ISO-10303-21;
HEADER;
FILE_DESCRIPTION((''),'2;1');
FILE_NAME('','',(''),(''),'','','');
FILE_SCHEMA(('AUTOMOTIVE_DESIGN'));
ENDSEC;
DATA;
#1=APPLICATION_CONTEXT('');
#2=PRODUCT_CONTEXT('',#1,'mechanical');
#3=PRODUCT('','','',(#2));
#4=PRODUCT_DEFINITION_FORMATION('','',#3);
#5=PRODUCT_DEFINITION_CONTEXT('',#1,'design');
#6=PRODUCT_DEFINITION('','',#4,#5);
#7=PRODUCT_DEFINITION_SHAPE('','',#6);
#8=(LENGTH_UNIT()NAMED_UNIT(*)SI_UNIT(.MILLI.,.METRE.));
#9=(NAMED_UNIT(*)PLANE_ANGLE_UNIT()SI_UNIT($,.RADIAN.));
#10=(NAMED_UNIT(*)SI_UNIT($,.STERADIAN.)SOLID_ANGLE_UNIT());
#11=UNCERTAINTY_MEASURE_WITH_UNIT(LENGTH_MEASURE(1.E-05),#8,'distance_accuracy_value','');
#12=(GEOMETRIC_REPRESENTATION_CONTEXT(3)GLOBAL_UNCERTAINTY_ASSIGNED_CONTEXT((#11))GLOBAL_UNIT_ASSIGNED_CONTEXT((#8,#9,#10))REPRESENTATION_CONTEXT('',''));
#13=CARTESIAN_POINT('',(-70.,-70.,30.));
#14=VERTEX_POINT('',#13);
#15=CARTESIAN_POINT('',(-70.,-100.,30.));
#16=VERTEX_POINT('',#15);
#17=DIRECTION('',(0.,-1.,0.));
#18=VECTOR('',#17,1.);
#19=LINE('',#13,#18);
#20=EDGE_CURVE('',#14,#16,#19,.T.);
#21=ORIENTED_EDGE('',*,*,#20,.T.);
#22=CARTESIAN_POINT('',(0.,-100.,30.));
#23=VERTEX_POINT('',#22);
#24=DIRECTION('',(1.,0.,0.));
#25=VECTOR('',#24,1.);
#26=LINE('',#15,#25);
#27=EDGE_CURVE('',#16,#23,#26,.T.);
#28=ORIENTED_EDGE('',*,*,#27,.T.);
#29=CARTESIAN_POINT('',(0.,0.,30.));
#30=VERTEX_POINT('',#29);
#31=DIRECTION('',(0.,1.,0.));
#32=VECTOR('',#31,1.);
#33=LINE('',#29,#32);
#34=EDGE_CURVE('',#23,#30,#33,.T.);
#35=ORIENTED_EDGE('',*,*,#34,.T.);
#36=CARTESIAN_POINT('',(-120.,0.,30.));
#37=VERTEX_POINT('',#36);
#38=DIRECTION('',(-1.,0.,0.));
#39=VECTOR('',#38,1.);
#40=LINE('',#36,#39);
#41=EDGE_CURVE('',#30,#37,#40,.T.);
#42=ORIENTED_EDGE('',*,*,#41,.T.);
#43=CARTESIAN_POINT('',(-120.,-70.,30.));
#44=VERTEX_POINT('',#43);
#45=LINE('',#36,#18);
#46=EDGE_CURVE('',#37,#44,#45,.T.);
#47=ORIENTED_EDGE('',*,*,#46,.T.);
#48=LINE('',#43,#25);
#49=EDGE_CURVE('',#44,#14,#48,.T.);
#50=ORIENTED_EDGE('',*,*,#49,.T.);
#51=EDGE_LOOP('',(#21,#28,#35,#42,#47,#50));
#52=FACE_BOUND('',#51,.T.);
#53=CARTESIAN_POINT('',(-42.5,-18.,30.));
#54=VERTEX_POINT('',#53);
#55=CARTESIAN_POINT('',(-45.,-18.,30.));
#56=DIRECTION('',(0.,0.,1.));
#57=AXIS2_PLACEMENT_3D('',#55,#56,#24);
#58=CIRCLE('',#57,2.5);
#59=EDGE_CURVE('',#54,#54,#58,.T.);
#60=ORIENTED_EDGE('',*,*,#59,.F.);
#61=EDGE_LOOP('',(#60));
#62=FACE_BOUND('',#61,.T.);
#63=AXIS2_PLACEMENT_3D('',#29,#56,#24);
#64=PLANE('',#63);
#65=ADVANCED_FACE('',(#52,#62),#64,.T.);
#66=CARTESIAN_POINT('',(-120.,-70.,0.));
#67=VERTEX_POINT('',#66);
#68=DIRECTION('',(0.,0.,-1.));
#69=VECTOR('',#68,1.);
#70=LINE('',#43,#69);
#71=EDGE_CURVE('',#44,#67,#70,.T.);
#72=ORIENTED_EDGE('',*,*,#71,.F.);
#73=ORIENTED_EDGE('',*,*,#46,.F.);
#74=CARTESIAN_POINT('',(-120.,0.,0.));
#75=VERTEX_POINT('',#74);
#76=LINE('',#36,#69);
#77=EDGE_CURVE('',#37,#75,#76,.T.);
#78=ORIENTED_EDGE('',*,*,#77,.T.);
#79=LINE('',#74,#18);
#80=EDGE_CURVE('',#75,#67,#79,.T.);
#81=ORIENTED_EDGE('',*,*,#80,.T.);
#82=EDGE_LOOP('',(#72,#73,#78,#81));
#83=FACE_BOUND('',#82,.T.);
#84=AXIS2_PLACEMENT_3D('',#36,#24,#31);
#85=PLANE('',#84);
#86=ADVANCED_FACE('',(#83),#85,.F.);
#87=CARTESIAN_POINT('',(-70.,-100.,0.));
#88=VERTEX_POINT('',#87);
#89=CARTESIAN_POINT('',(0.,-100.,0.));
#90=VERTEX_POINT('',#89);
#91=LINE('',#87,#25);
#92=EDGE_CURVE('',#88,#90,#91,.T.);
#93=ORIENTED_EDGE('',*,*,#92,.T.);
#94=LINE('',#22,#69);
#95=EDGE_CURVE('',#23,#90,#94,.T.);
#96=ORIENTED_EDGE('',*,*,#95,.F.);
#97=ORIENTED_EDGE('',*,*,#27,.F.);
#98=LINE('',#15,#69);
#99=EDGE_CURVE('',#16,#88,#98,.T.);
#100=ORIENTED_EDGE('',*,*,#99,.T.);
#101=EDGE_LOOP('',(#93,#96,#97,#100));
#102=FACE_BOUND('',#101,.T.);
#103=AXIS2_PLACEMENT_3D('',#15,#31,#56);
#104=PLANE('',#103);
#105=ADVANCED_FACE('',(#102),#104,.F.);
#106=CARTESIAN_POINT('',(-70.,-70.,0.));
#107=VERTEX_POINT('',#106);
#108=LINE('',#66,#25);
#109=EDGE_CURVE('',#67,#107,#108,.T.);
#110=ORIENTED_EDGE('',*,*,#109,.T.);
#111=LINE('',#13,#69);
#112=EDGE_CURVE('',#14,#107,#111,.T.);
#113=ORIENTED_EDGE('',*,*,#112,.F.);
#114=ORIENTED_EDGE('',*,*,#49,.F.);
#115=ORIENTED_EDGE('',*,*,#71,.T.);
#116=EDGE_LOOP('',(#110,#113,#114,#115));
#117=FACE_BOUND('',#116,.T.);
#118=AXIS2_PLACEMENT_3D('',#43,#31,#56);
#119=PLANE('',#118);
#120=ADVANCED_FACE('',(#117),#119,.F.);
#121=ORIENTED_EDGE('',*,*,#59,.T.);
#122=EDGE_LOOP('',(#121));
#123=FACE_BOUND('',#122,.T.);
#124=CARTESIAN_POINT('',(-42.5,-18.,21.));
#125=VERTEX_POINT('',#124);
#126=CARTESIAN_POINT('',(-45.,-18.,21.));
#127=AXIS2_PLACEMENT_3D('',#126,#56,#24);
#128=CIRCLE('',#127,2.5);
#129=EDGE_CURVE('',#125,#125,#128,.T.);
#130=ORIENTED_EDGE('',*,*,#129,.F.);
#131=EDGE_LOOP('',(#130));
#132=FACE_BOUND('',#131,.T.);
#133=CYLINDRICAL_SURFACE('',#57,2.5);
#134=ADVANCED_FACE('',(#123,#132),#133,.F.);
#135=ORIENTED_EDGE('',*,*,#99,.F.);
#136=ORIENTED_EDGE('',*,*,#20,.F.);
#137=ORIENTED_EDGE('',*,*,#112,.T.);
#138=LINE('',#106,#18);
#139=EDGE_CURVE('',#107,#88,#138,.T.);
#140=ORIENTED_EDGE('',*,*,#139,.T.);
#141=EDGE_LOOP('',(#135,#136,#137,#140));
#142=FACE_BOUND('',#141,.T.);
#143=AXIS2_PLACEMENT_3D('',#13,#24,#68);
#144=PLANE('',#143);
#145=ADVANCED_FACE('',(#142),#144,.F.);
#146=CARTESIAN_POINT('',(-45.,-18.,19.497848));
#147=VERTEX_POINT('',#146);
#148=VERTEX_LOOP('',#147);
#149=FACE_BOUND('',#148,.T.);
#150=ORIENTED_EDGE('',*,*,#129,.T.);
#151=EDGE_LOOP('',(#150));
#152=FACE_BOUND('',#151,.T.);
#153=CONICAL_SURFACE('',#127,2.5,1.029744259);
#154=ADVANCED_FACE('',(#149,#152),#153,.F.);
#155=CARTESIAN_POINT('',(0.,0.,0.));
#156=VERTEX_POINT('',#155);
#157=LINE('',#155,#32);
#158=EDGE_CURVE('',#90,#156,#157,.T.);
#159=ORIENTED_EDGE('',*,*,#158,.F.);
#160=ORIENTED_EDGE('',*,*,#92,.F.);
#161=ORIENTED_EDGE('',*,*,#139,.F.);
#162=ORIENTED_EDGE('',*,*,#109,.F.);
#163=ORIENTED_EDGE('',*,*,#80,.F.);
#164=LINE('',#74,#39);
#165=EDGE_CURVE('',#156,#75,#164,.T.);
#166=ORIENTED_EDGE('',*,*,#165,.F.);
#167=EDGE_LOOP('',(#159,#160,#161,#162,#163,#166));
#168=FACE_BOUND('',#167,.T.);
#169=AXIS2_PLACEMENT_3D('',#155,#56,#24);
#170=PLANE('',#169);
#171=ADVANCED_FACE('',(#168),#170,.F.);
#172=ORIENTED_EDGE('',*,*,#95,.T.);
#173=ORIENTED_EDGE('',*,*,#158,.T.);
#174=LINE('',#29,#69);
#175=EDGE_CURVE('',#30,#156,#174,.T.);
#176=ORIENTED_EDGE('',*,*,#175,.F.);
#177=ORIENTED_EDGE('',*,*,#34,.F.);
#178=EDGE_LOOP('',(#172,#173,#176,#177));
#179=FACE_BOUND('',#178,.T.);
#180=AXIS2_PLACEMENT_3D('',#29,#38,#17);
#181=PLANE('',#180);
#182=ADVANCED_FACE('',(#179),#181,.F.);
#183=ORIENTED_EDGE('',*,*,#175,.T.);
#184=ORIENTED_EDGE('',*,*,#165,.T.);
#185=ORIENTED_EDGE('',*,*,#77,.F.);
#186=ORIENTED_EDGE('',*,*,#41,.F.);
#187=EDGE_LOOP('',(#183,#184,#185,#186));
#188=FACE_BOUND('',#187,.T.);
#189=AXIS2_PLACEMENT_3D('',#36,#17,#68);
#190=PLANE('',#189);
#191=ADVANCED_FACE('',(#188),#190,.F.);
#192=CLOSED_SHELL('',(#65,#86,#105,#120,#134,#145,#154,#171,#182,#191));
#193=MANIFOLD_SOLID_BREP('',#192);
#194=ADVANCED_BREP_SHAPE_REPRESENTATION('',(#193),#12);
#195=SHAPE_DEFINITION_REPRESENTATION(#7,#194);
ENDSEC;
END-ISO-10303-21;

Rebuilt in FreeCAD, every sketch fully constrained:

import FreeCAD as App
import Part
import Sketcher

V = App.Vector

doc = App.newDocument("Part")
body = doc.addObject("PartDesign::Body", "Body")

sketch1 = body.newObject("Sketcher::SketchObject", "Sketch")
sketch1.AttachmentSupport = (doc.getObject("XY_Plane"), [""])
sketch1.MapMode = "FlatFace"
sketch1.addGeometry([
    Part.LineSegment(V(-120, -70, 0), V(-70, -70, 0)),
    Part.LineSegment(V(-70, -70, 0), V(-70, -100, 0)),
    Part.LineSegment(V(-70, -100, 0), V(0, -100, 0)),
    Part.LineSegment(V(0, -100, 0), V(0, 0, 0)),
    Part.LineSegment(V(0, 0, 0), V(-120, 0, 0)),
    Part.LineSegment(V(-120, 0, 0), V(-120, -70, 0)),
], False)
sketch1.addConstraint([
    Sketcher.Constraint("Coincident", 0, 2, 1, 1),
    Sketcher.Constraint("Coincident", 1, 2, 2, 1),
    Sketcher.Constraint("Coincident", 2, 2, 3, 1),
    Sketcher.Constraint("Coincident", 3, 2, 4, 1),
    Sketcher.Constraint("Coincident", 4, 2, 5, 1),
    Sketcher.Constraint("Coincident", 5, 2, 0, 1),
    Sketcher.Constraint("Horizontal", 0),
    Sketcher.Constraint("Vertical", 1),
    Sketcher.Constraint("Horizontal", 2),
    Sketcher.Constraint("Vertical", 3),
    Sketcher.Constraint("Horizontal", 4),
    Sketcher.Constraint("Vertical", 5),
    Sketcher.Constraint("Coincident", 3, 2, -1, 1),
    Sketcher.Constraint("Equal", 2, 5),
    Sketcher.Constraint("DistanceX", 0, 1, 0, 2, 50.0),
    Sketcher.Constraint("DistanceX", 2, 1, 2, 2, 70.0),
    Sketcher.Constraint("DistanceY", 1, 2, 1, 1, 30.0),
])
pad1 = body.newObject("PartDesign::Pad", "Pad")
pad1.Profile = sketch1
pad1.Length = 30

sketch2 = body.newObject("Sketcher::SketchObject", "Sketch001")
sketch2.AttachmentSupport = (doc.getObject("XY_Plane"), [""])
sketch2.MapMode = "FlatFace"
sketch2.AttachmentOffset = App.Placement(V(0, 0, 30), App.Rotation())
sketch2.addGeometry(Part.Circle(V(-45, -18, 0), V(0, 0, 1), 2.5), False)
sketch2.addConstraint([
    Sketcher.Constraint("Diameter", 0, 5.0),
    Sketcher.Constraint("DistanceX", 0, 3, -1, 1, 45.0),
    Sketcher.Constraint("DistanceY", 0, 3, -1, 1, 18.0),
])
doc.recompute()
hole = body.newObject("PartDesign::Hole", "Hole")
hole.Profile = sketch2
hole.ThreadType = "None"
hole.Diameter = 5
hole.DepthType = "Dimension"
hole.Depth = 9
hole.DrillPoint = "Angled"
hole.DrillPointAngle = 118

doc.recompute()
